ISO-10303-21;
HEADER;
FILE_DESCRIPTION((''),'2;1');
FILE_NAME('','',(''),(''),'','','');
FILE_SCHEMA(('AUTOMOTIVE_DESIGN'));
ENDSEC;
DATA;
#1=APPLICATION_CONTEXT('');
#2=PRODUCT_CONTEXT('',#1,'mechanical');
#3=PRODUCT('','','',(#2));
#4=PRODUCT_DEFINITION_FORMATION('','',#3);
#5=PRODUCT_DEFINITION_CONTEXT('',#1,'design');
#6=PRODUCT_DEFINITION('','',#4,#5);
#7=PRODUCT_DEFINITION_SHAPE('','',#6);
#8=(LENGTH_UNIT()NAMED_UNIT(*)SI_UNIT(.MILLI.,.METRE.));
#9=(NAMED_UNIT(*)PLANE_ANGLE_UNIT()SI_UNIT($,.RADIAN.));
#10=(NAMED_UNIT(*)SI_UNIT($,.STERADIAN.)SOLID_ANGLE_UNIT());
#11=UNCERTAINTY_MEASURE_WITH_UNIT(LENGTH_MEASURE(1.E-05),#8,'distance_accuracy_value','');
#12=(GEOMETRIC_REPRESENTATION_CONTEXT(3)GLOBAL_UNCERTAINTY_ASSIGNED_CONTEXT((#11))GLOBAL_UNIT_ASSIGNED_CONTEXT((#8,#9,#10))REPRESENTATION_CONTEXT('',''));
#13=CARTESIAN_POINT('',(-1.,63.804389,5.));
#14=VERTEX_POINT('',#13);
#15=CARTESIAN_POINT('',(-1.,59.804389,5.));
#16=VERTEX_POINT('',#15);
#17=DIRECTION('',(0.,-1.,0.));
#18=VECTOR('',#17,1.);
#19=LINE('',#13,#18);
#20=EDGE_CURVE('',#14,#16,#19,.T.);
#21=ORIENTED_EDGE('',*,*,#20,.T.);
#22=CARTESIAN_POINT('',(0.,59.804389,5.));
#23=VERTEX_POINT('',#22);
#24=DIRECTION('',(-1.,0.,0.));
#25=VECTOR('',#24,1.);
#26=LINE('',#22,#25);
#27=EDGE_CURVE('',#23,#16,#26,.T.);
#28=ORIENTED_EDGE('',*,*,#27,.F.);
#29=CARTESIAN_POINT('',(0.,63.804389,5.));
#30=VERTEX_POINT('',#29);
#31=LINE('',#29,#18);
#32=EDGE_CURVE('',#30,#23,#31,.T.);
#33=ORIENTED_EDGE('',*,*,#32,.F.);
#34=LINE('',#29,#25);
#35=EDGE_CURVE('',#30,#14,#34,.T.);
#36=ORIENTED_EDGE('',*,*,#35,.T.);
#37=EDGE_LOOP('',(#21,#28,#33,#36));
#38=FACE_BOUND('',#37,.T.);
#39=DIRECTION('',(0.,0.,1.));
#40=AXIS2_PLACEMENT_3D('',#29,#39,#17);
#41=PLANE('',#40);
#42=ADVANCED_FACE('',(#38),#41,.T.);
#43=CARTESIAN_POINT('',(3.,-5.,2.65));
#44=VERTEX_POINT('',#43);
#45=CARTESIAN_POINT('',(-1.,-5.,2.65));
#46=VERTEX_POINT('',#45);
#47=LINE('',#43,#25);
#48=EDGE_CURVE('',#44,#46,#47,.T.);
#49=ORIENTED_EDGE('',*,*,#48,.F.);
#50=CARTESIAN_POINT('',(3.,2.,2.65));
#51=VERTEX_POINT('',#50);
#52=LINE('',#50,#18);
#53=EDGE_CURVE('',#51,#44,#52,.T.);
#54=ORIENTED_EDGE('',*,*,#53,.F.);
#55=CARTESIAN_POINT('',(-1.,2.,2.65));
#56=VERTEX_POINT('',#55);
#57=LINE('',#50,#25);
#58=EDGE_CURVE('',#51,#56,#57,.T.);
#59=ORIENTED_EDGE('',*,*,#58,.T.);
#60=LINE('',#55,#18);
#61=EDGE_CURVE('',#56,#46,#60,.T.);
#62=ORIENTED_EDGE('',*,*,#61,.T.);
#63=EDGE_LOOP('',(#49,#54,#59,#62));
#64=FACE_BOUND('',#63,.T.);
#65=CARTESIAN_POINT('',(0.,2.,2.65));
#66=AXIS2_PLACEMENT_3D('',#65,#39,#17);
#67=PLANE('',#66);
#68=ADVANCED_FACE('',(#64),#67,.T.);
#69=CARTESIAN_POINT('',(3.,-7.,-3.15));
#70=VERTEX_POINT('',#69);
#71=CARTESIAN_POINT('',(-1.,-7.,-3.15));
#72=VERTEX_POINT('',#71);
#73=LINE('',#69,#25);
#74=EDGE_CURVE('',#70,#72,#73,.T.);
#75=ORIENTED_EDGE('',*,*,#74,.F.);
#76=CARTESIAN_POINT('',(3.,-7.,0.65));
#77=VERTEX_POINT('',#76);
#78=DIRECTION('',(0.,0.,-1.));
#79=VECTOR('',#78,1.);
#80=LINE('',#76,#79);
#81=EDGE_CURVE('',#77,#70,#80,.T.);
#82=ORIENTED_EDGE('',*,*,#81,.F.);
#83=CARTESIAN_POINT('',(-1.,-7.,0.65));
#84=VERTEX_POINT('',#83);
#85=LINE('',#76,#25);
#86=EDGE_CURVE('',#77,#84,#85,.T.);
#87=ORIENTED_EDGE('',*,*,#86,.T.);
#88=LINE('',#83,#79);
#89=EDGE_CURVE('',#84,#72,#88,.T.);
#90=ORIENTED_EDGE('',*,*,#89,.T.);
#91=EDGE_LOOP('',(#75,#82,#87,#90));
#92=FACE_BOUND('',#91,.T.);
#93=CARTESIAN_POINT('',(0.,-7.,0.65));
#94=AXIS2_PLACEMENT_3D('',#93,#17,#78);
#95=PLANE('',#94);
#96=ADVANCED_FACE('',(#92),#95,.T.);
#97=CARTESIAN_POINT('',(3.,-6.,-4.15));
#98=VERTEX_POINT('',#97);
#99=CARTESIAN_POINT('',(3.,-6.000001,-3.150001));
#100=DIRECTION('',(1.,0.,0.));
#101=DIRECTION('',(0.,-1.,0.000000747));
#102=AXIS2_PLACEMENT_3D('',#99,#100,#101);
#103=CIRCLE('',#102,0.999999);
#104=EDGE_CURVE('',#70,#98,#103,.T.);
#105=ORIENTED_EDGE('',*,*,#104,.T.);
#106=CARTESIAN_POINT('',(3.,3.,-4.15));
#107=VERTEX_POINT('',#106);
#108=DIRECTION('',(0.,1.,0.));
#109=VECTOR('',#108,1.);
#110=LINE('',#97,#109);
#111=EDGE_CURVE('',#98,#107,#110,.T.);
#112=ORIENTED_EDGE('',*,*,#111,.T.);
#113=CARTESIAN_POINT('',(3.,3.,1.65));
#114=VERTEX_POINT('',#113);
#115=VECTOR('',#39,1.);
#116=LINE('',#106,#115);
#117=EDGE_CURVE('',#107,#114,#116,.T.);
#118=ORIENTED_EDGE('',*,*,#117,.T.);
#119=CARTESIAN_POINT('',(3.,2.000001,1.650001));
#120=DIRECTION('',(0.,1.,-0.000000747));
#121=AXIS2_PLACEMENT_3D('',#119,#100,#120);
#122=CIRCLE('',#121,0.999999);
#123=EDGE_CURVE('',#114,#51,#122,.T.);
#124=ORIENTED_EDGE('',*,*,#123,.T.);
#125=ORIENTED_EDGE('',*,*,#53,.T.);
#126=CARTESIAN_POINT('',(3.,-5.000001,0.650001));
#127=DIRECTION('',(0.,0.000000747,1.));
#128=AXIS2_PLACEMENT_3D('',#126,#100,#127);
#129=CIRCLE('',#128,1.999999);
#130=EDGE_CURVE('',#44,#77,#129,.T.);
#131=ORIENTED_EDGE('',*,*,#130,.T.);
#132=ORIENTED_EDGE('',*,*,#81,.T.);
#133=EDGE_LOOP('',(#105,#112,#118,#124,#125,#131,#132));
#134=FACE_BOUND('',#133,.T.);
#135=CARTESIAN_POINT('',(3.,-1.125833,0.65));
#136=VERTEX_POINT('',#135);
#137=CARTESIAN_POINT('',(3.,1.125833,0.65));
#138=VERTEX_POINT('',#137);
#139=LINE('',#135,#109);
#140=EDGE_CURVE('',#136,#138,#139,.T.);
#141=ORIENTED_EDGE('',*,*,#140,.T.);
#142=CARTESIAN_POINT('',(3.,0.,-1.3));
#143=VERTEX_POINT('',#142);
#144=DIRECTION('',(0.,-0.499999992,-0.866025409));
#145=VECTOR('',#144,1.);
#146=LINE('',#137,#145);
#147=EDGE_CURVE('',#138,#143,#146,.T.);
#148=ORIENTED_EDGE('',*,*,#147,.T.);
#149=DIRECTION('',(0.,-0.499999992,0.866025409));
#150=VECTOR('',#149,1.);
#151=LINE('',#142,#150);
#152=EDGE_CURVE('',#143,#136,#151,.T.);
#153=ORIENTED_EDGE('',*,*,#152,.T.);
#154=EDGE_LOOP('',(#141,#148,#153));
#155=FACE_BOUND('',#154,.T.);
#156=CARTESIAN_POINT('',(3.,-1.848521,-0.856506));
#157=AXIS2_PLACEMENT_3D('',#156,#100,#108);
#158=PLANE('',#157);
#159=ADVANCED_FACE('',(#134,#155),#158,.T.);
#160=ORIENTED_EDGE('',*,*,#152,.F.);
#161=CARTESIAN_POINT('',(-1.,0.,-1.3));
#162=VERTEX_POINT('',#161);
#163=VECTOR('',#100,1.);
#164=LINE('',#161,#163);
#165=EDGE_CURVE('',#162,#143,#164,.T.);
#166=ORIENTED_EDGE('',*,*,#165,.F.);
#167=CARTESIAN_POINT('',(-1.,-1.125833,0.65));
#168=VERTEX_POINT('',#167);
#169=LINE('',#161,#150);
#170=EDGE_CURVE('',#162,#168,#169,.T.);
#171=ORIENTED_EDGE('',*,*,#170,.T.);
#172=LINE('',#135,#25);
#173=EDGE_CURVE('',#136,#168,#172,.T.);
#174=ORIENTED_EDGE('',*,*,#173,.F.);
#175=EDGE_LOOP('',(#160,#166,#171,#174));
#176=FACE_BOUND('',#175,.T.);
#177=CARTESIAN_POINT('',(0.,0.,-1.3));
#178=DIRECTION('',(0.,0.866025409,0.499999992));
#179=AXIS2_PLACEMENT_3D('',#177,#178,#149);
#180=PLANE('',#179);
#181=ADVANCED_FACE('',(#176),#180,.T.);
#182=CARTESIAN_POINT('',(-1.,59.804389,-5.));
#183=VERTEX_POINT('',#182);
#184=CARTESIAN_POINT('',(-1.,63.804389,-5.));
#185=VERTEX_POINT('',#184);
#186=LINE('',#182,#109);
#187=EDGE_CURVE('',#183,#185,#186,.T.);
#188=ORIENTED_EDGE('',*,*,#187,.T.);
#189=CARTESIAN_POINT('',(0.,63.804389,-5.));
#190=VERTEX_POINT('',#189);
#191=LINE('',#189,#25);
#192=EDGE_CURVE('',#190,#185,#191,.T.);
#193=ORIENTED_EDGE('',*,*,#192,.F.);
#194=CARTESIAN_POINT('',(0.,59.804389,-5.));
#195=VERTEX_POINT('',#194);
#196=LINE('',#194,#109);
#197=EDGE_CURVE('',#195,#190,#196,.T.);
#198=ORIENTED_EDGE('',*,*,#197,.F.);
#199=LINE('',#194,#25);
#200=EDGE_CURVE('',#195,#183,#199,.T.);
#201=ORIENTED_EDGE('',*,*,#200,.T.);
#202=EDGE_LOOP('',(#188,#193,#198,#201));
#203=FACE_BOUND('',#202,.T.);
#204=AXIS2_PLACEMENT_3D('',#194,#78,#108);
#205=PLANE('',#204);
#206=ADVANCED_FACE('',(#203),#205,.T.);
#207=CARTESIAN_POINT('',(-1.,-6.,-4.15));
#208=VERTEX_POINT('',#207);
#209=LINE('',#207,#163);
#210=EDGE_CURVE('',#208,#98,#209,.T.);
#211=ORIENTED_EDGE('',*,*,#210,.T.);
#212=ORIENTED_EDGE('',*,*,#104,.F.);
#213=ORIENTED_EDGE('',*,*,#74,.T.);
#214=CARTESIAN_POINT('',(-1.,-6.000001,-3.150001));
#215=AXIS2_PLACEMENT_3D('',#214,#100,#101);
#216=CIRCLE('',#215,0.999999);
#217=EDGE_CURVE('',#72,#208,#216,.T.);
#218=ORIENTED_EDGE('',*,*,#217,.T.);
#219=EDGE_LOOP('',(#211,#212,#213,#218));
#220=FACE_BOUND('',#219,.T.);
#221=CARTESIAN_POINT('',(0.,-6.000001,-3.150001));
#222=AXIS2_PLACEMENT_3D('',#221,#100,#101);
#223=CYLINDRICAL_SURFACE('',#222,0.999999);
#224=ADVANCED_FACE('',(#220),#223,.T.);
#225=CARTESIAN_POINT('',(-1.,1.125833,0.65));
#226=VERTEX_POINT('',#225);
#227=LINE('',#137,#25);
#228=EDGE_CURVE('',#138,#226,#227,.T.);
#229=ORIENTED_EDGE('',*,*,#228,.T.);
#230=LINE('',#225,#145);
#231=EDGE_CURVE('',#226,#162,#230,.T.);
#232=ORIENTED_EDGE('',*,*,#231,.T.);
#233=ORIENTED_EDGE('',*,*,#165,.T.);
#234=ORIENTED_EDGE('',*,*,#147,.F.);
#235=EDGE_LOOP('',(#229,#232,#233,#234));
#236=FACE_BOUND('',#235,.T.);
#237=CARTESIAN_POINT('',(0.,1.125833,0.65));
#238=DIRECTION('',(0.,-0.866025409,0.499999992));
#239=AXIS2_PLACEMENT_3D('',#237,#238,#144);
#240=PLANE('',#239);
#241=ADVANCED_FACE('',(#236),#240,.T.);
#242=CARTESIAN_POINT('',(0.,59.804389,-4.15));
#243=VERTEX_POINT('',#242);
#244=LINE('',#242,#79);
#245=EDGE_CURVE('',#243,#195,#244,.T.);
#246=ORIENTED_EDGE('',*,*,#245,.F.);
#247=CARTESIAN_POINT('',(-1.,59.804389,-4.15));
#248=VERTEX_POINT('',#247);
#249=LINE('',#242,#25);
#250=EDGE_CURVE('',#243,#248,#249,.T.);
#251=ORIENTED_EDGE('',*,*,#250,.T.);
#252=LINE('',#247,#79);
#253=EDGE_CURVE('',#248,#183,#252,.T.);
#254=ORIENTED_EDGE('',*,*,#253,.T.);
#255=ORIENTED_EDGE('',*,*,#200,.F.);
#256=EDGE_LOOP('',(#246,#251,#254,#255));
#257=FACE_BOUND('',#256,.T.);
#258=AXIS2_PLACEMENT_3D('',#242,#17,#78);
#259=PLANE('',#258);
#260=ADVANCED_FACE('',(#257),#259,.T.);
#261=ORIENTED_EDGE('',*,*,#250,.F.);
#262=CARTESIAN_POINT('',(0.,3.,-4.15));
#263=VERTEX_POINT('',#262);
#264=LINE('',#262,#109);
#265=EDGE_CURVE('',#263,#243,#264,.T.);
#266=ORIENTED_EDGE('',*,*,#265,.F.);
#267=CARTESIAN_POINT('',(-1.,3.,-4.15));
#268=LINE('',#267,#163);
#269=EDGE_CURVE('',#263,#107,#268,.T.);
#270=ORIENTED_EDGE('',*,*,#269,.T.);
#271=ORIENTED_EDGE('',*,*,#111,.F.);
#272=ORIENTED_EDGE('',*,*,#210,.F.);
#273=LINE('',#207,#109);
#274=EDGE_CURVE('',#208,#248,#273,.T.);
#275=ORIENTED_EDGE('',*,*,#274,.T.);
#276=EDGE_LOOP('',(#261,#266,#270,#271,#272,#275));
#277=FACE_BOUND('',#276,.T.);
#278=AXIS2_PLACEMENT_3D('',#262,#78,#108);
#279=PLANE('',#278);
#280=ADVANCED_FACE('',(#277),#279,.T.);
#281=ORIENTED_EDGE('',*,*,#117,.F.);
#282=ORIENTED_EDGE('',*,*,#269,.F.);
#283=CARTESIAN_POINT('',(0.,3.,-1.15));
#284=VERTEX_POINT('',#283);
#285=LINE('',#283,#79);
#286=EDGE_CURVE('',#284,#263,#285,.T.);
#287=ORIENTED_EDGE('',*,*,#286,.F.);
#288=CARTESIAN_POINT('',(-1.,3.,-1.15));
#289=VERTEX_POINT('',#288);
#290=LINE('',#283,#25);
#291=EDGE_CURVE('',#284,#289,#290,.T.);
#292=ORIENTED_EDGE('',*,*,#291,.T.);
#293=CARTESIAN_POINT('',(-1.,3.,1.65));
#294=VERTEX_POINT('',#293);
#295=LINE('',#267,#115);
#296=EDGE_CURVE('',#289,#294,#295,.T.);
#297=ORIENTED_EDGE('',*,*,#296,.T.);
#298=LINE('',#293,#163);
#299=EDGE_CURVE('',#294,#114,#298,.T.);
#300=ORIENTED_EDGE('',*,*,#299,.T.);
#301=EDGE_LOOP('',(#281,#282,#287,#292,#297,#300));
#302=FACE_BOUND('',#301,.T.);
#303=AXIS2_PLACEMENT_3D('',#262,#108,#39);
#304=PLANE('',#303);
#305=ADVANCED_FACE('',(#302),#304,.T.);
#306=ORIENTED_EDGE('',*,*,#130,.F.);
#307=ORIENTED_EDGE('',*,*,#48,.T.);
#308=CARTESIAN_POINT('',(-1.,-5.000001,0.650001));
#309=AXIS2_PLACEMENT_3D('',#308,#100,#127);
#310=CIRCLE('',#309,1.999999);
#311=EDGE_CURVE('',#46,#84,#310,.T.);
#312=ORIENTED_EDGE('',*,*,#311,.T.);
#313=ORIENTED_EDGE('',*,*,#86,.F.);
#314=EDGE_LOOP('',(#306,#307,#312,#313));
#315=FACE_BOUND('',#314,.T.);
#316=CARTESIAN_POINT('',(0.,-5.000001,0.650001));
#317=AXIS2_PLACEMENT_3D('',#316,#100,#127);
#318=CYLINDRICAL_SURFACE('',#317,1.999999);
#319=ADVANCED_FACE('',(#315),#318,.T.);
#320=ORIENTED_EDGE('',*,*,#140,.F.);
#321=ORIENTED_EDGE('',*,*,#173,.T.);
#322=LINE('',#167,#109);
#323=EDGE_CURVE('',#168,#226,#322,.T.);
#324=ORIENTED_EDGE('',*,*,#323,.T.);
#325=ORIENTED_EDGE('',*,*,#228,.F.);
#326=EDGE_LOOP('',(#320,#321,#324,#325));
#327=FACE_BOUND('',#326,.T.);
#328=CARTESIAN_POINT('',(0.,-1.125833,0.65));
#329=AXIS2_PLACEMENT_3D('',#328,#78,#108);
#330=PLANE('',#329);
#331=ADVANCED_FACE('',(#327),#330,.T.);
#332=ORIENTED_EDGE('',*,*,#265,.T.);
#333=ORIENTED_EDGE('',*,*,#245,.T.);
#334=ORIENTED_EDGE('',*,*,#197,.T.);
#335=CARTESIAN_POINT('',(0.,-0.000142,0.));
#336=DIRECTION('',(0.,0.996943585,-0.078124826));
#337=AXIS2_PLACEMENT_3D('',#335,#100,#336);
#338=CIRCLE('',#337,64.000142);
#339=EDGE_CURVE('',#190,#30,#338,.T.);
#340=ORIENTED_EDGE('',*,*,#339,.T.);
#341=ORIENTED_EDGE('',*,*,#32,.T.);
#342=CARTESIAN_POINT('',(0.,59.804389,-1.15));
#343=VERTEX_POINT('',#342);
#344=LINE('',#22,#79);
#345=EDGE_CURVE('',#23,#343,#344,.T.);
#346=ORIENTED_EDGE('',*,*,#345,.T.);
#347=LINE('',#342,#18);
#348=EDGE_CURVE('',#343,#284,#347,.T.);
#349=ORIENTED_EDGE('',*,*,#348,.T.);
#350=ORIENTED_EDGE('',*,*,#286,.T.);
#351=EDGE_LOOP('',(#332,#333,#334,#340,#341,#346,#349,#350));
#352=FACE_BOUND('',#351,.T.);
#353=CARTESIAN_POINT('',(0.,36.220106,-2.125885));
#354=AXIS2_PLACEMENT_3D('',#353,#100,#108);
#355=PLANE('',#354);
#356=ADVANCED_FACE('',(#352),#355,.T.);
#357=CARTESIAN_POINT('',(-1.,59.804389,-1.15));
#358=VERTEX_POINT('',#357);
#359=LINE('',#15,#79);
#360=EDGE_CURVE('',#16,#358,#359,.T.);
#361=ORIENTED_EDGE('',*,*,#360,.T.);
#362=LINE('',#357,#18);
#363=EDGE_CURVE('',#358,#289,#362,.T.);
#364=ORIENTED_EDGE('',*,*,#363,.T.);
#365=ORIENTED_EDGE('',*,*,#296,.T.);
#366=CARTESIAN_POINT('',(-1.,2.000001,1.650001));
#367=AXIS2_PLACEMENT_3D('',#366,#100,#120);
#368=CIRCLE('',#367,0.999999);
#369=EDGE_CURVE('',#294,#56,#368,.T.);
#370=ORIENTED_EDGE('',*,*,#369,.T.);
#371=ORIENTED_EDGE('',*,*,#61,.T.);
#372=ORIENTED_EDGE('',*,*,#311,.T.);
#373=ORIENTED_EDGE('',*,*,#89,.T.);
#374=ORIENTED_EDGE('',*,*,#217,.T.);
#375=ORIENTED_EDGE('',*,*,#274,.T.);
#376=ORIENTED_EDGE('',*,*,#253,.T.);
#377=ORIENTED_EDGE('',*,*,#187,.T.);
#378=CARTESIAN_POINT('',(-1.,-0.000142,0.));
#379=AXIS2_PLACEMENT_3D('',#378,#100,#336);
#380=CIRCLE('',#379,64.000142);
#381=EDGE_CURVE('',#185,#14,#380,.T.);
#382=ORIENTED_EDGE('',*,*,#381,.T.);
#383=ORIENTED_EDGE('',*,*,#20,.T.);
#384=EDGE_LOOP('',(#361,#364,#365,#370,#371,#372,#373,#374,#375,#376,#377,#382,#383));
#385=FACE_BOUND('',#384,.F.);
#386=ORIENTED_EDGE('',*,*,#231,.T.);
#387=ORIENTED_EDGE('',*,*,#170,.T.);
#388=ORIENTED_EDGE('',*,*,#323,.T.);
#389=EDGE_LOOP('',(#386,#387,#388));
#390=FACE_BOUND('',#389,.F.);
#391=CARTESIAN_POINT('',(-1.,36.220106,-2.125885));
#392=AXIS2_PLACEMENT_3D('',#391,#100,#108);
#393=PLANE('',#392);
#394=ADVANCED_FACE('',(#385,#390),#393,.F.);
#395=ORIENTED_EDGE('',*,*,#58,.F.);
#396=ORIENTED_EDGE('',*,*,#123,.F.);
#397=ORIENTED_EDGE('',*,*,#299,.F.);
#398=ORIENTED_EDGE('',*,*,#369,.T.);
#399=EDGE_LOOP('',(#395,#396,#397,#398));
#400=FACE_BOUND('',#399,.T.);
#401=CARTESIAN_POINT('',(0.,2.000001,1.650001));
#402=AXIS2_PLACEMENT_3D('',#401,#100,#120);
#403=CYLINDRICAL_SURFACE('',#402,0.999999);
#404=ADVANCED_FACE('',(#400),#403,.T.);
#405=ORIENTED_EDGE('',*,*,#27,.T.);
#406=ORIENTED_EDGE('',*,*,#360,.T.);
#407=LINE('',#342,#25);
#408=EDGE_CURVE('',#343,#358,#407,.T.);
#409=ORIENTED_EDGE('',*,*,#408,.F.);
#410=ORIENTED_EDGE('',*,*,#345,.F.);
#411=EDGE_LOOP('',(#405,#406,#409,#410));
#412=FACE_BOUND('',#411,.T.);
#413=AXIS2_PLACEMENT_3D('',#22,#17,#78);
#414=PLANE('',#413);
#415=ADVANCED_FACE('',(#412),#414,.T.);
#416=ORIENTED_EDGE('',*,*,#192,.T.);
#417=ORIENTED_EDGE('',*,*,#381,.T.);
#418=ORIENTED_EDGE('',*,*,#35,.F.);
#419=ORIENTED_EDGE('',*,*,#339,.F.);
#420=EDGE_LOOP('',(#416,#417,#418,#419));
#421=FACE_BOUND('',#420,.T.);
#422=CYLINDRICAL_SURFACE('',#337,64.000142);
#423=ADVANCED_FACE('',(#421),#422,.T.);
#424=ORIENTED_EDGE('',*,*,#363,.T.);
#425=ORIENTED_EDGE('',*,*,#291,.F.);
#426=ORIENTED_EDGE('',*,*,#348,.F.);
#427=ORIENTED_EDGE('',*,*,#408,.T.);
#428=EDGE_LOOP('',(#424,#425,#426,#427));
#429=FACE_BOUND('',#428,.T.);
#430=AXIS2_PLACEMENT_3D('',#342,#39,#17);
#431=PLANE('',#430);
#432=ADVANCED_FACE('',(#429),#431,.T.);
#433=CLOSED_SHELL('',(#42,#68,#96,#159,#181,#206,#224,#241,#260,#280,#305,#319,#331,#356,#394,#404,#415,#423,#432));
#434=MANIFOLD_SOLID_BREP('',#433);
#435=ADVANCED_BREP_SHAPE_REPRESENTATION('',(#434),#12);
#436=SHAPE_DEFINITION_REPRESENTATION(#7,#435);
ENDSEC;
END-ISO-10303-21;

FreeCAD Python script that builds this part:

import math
import FreeCAD as App
import Part
import Sketcher
Q = App.Units.Quantity

doc = App.newDocument("Part")
body = doc.addObject("PartDesign::Body", "Body")

# Sketch on YZ plane
sketch1 = doc.addObject("Sketcher::SketchObject", "Sketch")
body.addObject(sketch1)
sketch1.AttachmentSupport = (doc.YZ_Plane, [""])
sketch1.MapMode = "FlatFace"
sketch1.addGeometry(Part.ArcOfCircle(Part.Circle(App.Vector(-6, -3.2, 0), App.Vector(0, 0, 1), 1), math.radians(180), math.radians(270)), False)
sketch1.addGeometry(Part.LineSegment(App.Vector(-6, -4.2, 0), App.Vector(3, -4.2, 0)), False)
sketch1.addGeometry(Part.LineSegment(App.Vector(3, -4.2, 0), App.Vector(3, 1.6, 0)), False)
sketch1.addGeometry(Part.ArcOfCircle(Part.Circle(App.Vector(2, 1.7, 0), App.Vector(0, 0, 1), 1), math.radians(0), math.radians(90)), False)
sketch1.addGeometry(Part.LineSegment(App.Vector(2, 2.6, 0), App.Vector(-5, 2.6, 0)), False)
sketch1.addGeometry(Part.ArcOfCircle(Part.Circle(App.Vector(-5, 0.7, 0), App.Vector(0, 0, 1), 2), math.radians(90), math.radians(180)), False)
sketch1.addGeometry(Part.LineSegment(App.Vector(-7, 0.7, 0), App.Vector(-7, -3.1, 0)), False)
sketch1.addGeometry(Part.LineSegment(App.Vector(1.1, 0.7, 0), App.Vector(0, -1.3, 0)), False)
sketch1.addGeometry(Part.LineSegment(App.Vector(0, -1.3, 0), App.Vector(-1.1, 0.7, 0)), False)
sketch1.addGeometry(Part.LineSegment(App.Vector(-1.1, 0.7, 0), App.Vector(1.1, 0.7, 0)), False)
sketch1.addConstraint(Sketcher.Constraint("Tangent", 0, 2, 1, 1))
sketch1.addConstraint(Sketcher.Constraint("Coincident", 1, 2, 2, 1))
sketch1.addConstraint(Sketcher.Constraint("Tangent", 2, 2, 3, 1))
sketch1.addConstraint(Sketcher.Constraint("Tangent", 3, 2, 4, 1))
sketch1.addConstraint(Sketcher.Constraint("Tangent", 4, 2, 5, 1))
sketch1.addConstraint(Sketcher.Constraint("Tangent", 5, 2, 6, 1))
sketch1.addConstraint(Sketcher.Constraint("Tangent", 6, 2, 0, 1))
sketch1.addConstraint(Sketcher.Constraint("Coincident", 7, 2, 8, 1))
sketch1.addConstraint(Sketcher.Constraint("Coincident", 8, 2, 9, 1))
sketch1.addConstraint(Sketcher.Constraint("Coincident", 9, 2, 7, 1))
sketch1.addConstraint(Sketcher.Constraint("Horizontal", 1))
sketch1.addConstraint(Sketcher.Constraint("Vertical", 2))
sketch1.addConstraint(Sketcher.Constraint("Horizontal", 4))
sketch1.addConstraint(Sketcher.Constraint("Vertical", 6))
sketch1.addConstraint(Sketcher.Constraint("Horizontal", 9))
sketch1.addConstraint(Sketcher.Constraint("Equal", 0, 3))
sketch1.addConstraint(Sketcher.Constraint("PointOnObject", 7, 2, -2))
sketch1.addConstraint(Sketcher.Constraint("Horizontal", 5, 2, 8, 2))
sketch1.addConstraint(Sketcher.Constraint("Equal", 7, 8))
sketch1.addConstraint(Sketcher.Constraint("Radius", 0, 0.999999))
sketch1.addConstraint(Sketcher.Constraint("Radius", 5, 1.999999))
sketch1.addConstraint(Sketcher.Constraint("DistanceX", 1, 1, 1, 2, 9.0))
sketch1.addConstraint(Sketcher.Constraint("Angle", 7, Q("-119.999999 deg")))
sketch1.addConstraint(Sketcher.Constraint("DistanceY", 2, 1, 2, 2, 5.8))
sketch1.addConstraint(Sketcher.Constraint("DistanceX", 0, 3, -1, 1, 6.000001))
sketch1.addConstraint(Sketcher.Constraint("DistanceY", 7, 2, -1, 1, 1.3))
sketch1.addConstraint(Sketcher.Constraint("DistanceY", 0, 3, -1, 1, 3.150001))
pad1 = doc.addObject("PartDesign::Pad", "Pad")
body.addObject(pad1)
pad1.Profile = sketch1
pad1.Type = "TwoLengths"
pad1.Length = 3
pad1.Length2 = 1

# Sketch on YZ plane
sketch2 = doc.addObject("Sketcher::SketchObject", "Sketch001")
body.addObject(sketch2)
sketch2.AttachmentSupport = (doc.YZ_Plane, [""])
sketch2.MapMode = "FlatFace"
sketch2.addGeometry(Part.LineSegment(App.Vector(3, -1.1, 0), App.Vector(3, -4.2, 0)), False)
sketch2.addGeometry(Part.LineSegment(App.Vector(3, -4.2, 0), App.Vector(59.8, -4.2, 0)), False)
sketch2.addGeometry(Part.LineSegment(App.Vector(59.8, -4.2, 0), App.Vector(59.8, -5, 0)), False)
sketch2.addGeometry(Part.LineSegment(App.Vector(59.8, -5, 0), App.Vector(63.8, -5, 0)), False)
sketch2.addGeometry(Part.ArcOfCircle(Part.Circle(App.Vector(0, 0, 0), App.Vector(0, 0, 1), 64), math.radians(-4.48), math.radians(4.48)), False)
sketch2.addGeometry(Part.LineSegment(App.Vector(63.8, 5, 0), App.Vector(59.8, 5, 0)), False)
sketch2.addGeometry(Part.LineSegment(App.Vector(59.8, 5, 0), App.Vector(59.8, -1.1, 0)), False)
sketch2.addGeometry(Part.LineSegment(App.Vector(59.8, -1.1, 0), App.Vector(3, -1.1, 0)), False)
sketch2.addConstraint(Sketcher.Constraint("Coincident", 0, 2, 1, 1))
sketch2.addConstraint(Sketcher.Constraint("Coincident", 1, 2, 2, 1))
sketch2.addConstraint(Sketcher.Constraint("Coincident", 2, 2, 3, 1))
sketch2.addConstraint(Sketcher.Constraint("Coincident", 3, 2, 4, 1))
sketch2.addConstraint(Sketcher.Constraint("Coincident", 4, 2, 5, 1))
sketch2.addConstraint(Sketcher.Constraint("Coincident", 5, 2, 6, 1))
sketch2.addConstraint(Sketcher.Constraint("Coincident", 6, 2, 7, 1))
sketch2.addConstraint(Sketcher.Constraint("Coincident", 7, 2, 0, 1))
sketch2.addConstraint(Sketcher.Constraint("Vertical", 0))
sketch2.addConstraint(Sketcher.Constraint("Horizontal", 1))
sketch2.addConstraint(Sketcher.Constraint("Vertical", 2))
sketch2.addConstraint(Sketcher.Constraint("Horizontal", 3))
sketch2.addConstraint(Sketcher.Constraint("Horizontal", 5))
sketch2.addConstraint(Sketcher.Constraint("Vertical", 6))
sketch2.addConstraint(Sketcher.Constraint("Horizontal", 7))
sketch2.addConstraint(Sketcher.Constraint("Symmetric", 3, 2, 4, 2, -1))
sketch2.addConstraint(Sketcher.Constraint("Vertical", 2, 2, 5, 2))
sketch2.addConstraint(Sketcher.Constraint("DistanceX", 3, 1, 3, 2, 4.0))
sketch2.addConstraint(Sketcher.Constraint("DistanceY", 0, 2, 0, 1, 3.0))
sketch2.addConstraint(Sketcher.Constraint("DistanceX", -1, 1, 0, 2, 3.0))
sketch2.addConstraint(Sketcher.Constraint("DistanceY", 2, 2, -1, 1, 5.0))
sketch2.addConstraint(Sketcher.Constraint("DistanceY", 2, 2, 2, 1, 0.85))
sketch2.addConstraint(Sketcher.Constraint("Radius", 4, 64.000142))
sketch2.addConstraint(Sketcher.Constraint("DistanceX", 1, 1, 1, 2, 56.804389))
pad2 = doc.addObject("PartDesign::Pad", "Pad001")
body.addObject(pad2)
pad2.Profile = sketch2
pad2.Length = 1
pad2.Reversed = True

doc.recompute()
